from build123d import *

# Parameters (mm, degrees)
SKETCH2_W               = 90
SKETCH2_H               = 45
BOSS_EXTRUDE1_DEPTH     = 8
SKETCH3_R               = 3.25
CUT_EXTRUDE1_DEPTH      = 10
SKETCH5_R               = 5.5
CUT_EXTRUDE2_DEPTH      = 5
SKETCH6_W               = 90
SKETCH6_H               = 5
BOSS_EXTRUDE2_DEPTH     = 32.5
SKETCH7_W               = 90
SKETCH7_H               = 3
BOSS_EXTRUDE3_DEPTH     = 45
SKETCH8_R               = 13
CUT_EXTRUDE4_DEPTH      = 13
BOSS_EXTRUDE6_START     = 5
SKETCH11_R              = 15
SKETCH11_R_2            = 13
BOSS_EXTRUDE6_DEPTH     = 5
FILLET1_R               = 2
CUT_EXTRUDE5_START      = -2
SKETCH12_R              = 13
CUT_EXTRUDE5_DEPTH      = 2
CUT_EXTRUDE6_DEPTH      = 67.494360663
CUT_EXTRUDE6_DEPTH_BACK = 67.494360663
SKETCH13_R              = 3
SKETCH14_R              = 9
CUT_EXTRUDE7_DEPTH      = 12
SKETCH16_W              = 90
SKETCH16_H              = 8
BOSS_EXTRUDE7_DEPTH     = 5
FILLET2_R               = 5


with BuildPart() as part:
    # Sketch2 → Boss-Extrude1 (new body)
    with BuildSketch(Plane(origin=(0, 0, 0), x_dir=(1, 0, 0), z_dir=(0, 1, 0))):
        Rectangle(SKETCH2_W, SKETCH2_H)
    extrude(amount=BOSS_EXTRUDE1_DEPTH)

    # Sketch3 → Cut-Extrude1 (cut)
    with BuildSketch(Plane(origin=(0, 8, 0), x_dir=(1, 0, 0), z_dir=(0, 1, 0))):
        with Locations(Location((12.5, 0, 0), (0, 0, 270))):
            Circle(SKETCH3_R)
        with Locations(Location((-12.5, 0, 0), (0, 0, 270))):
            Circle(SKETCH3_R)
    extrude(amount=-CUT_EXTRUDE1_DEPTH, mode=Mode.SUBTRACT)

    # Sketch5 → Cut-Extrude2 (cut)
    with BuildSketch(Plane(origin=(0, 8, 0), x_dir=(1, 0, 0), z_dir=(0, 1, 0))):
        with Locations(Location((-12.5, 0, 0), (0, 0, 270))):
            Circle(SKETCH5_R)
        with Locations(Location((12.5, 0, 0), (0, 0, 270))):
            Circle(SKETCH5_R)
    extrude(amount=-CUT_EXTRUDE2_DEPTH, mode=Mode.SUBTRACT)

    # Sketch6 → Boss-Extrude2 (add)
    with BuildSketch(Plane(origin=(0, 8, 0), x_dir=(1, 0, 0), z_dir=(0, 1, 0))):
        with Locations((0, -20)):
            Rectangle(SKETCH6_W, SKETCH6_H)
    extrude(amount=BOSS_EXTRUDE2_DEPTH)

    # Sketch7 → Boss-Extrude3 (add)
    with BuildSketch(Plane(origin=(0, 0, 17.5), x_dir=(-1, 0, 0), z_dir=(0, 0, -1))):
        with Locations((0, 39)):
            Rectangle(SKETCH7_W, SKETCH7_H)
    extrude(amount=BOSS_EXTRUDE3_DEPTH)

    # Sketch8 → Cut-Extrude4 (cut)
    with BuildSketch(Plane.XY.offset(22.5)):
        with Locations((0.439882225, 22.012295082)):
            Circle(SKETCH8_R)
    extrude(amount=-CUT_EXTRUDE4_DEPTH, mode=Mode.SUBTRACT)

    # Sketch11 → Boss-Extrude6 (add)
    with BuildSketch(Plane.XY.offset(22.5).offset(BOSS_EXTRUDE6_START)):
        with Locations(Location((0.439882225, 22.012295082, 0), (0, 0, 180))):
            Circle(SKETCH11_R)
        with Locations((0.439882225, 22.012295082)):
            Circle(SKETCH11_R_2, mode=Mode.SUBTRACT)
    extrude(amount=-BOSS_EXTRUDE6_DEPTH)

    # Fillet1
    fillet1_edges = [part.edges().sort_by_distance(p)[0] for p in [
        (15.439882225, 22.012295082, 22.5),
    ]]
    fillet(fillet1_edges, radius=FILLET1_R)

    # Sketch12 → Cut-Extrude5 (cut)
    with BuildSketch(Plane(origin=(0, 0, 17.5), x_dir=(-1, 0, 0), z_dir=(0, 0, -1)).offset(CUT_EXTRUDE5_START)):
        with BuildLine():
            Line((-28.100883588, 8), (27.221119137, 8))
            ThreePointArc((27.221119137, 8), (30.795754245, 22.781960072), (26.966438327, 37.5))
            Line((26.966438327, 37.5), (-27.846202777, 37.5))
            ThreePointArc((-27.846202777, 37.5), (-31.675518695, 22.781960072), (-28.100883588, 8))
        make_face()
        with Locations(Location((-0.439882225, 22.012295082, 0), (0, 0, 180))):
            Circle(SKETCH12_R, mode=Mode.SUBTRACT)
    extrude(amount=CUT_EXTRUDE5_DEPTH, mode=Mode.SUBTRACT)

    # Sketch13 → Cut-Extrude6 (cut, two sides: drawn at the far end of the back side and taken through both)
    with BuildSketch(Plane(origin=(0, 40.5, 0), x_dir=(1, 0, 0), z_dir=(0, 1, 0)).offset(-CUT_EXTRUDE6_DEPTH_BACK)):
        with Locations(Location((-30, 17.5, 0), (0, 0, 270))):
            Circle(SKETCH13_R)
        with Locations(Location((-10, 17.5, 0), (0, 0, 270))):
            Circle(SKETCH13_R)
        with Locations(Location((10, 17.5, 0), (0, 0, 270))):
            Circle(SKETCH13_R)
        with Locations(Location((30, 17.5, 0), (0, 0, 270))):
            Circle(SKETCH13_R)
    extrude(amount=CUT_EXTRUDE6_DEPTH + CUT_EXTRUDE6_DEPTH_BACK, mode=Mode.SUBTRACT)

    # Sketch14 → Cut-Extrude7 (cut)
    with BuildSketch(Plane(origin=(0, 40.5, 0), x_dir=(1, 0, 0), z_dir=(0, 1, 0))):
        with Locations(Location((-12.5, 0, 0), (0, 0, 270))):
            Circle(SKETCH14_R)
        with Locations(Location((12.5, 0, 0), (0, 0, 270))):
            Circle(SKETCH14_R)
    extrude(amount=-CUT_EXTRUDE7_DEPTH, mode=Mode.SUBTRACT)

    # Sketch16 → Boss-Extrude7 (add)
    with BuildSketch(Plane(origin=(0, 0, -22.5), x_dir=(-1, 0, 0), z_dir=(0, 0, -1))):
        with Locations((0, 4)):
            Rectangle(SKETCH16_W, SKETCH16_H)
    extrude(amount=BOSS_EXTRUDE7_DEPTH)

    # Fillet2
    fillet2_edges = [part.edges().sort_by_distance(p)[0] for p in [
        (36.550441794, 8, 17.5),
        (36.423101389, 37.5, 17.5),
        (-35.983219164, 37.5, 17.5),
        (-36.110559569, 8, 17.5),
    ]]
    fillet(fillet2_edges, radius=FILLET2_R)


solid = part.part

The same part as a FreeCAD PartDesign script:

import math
import FreeCAD as App
import Part
import Sketcher


def edges_at(feature, points):
    """Names of the edges that pass closest to the given points."""
    edges = feature.Shape.Edges
    near = lambda p: min(range(len(edges)), key=lambda i: edges[i].distToShape(Part.Vertex(*p))[0])
    return sorted({f"Edge{near(p) + 1}" for p in points})

doc = App.newDocument("Part")
body = doc.addObject("PartDesign::Body", "Body")

# Sketch on XZ plane
sketch1 = body.newObject("Sketcher::SketchObject", "Sketch")
sketch1.AttachmentSupport = (doc.getObject("XZ_Plane"), [""])
sketch1.MapMode = "FlatFace"
sketch1.addGeometry([
    Part.LineSegment(App.Vector(-45, -22, 0), App.Vector(-45, 22, 0)),
    Part.LineSegment(App.Vector(-45, 22, 0), App.Vector(45, 22, 0)),
    Part.LineSegment(App.Vector(45, 22, 0), App.Vector(45, -22, 0)),
    Part.LineSegment(App.Vector(45, -22, 0), App.Vector(-45, -22, 0)),
], False)
sketch1.addConstraint([
    Sketcher.Constraint("Coincident", 0, 2, 1, 1),
    Sketcher.Constraint("Coincident", 1, 2, 2, 1),
    Sketcher.Constraint("Coincident", 2, 2, 3, 1),
    Sketcher.Constraint("Coincident", 3, 2, 0, 1),
    Sketcher.Constraint("Vertical", 0),
    Sketcher.Constraint("Horizontal", 1),
    Sketcher.Constraint("Vertical", 2),
    Sketcher.Constraint("Horizontal", 3),
    Sketcher.Constraint("Symmetric", 0, 2, 2, 2, -1, 1),
    Sketcher.Constraint("DistanceX", 1, 1, 1, 2, 90.0),
    Sketcher.Constraint("DistanceY", 0, 1, 0, 2, 45.0),
])
pad1 = body.newObject("PartDesign::Pad", "Pad")
pad1.Profile = sketch1
pad1.Length = 8
pad1.Reversed = True

# Sketch on XZ plane
sketch2 = body.newObject("Sketcher::SketchObject", "Sketch001")
sketch2.AttachmentSupport = (doc.getObject("XZ_Plane"), [""])
sketch2.MapMode = "FlatFace"
sketch2.AttachmentOffset = App.Placement(App.Vector(0, 0, -8), App.Rotation())
sketch2.addGeometry([
    Part.Circle(App.Vector(12.5, 0, 0), App.Vector(0, 0, 1), 3.2),
    Part.Circle(App.Vector(-12.5, 0, 0), App.Vector(0, 0, 1), 3.2),
], False)
sketch2.addConstraint([
    Sketcher.Constraint("Equal", 0, 1),
    Sketcher.Constraint("Symmetric", 0, 3, 1, 3, -1, 1),
    Sketcher.Constraint("PointOnObject", 0, 3, -1),
    Sketcher.Constraint("Diameter", 0, 6.5),
    Sketcher.Constraint("DistanceX", 1, 3, 0, 3, 25.0),
])
pocket1 = body.newObject("PartDesign::Pocket", "Pocket")
pocket1.Profile = sketch2
pocket1.Length = 10
pocket1.Reversed = True

# Sketch on XZ plane
sketch3 = body.newObject("Sketcher::SketchObject", "Sketch002")
sketch3.AttachmentSupport = (doc.getObject("XZ_Plane"), [""])
sketch3.MapMode = "FlatFace"
sketch3.AttachmentOffset = App.Placement(App.Vector(0, 0, -8), App.Rotation())
sketch3.addGeometry([
    Part.Circle(App.Vector(-12, 0, 0), App.Vector(0, 0, 1), 6),
    Part.Circle(App.Vector(12, 0, 0), App.Vector(0, 0, 1), 6),
], False)
sketch3.addConstraint([
    Sketcher.Constraint("Equal", 0, 1),
    Sketcher.Constraint("Symmetric", 0, 3, 1, 3, -1, 1),
    Sketcher.Constraint("PointOnObject", 0, 3, -1),
    Sketcher.Constraint("Diameter", 0, 11.0),
    Sketcher.Constraint("DistanceX", 0, 3, 1, 3, 25.0),
])
pocket2 = body.newObject("PartDesign::Pocket", "Pocket001")
pocket2.Profile = sketch3
pocket2.Length = 5
pocket2.Reversed = True

# Sketch on XZ plane
sketch4 = body.newObject("Sketcher::SketchObject", "Sketch003")
sketch4.AttachmentSupport = (doc.getObject("XZ_Plane"), [""])
sketch4.MapMode = "FlatFace"
sketch4.AttachmentOffset = App.Placement(App.Vector(0, 0, -8), App.Rotation())
sketch4.addGeometry([
    Part.LineSegment(App.Vector(-45, 18, 0), App.Vector(-45, 22, 0)),
    Part.LineSegment(App.Vector(-45, 22, 0), App.Vector(45, 22, 0)),
    Part.LineSegment(App.Vector(45, 22, 0), App.Vector(45, 18, 0)),
    Part.LineSegment(App.Vector(45, 18, 0), App.Vector(-45, 18, 0)),
], False)
sketch4.addConstraint([
    Sketcher.Constraint("Coincident", 0, 2, 1, 1),
    Sketcher.Constraint("Coincident", 1, 2, 2, 1),
    Sketcher.Constraint("Coincident", 2, 2, 3, 1),
    Sketcher.Constraint("Coincident", 3, 2, 0, 1),
    Sketcher.Constraint("Vertical", 0),
    Sketcher.Constraint("Horizontal", 1),
    Sketcher.Constraint("Vertical", 2),
    Sketcher.Constraint("Horizontal", 3),
    Sketcher.Constraint("DistanceX", 1, 1, 1, 2, 90.0),
    Sketcher.Constraint("DistanceY", 0, 1, 0, 2, 5.0),
    Sketcher.Constraint("DistanceX", 0, 2, -1, 1, 45.0),
    Sketcher.Constraint("DistanceY", -1, 1, 0, 2, 22.5),
])
pad2 = body.newObject("PartDesign::Pad", "Pad001")
pad2.Profile = sketch4
pad2.Length = 32.5
pad2.Reversed = True

# Sketch on XY plane
sketch5 = body.newObject("Sketcher::SketchObject", "Sketch004")
sketch5.AttachmentSupport = (doc.getObject("XY_Plane"), [""])
sketch5.MapMode = "FlatFace"
sketch5.AttachmentOffset = App.Placement(App.Vector(0, 0, 17.5), App.Rotation())
sketch5.addGeometry([
    Part.LineSegment(App.Vector(45, 40.5, 0), App.Vector(45, 37.5, 0)),
    Part.LineSegment(App.Vector(45, 37.5, 0), App.Vector(-45, 37.5, 0)),
    Part.LineSegment(App.Vector(-45, 37.5, 0), App.Vector(-45, 40.5, 0)),
    Part.LineSegment(App.Vector(-45, 40.5, 0), App.Vector(45, 40.5, 0)),
], False)
sketch5.addConstraint([
    Sketcher.Constraint("Coincident", 0, 2, 1, 1),
    Sketcher.Constraint("Coincident", 1, 2, 2, 1),
    Sketcher.Constraint("Coincident", 2, 2, 3, 1),
    Sketcher.Constraint("Coincident", 3, 2, 0, 1),
    Sketcher.Constraint("Vertical", 0),
    Sketcher.Constraint("Horizontal", 1),
    Sketcher.Constraint("Vertical", 2),
    Sketcher.Constraint("Horizontal", 3),
    Sketcher.Constraint("DistanceX", 1, 2, 1, 1, 90.0),
    Sketcher.Constraint("DistanceY", 0, 2, 0, 1, 3.0),
    Sketcher.Constraint("DistanceX", -1, 1, 0, 2, 45.0),
    Sketcher.Constraint("DistanceY", -1, 1, 0, 2, 37.5),
])
pad3 = body.newObject("PartDesign::Pad", "Pad002")
pad3.Profile = sketch5
pad3.Length = 45
pad3.Reversed = True

# Sketch on XY plane
sketch6 = body.newObject("Sketcher::SketchObject", "Sketch005")
sketch6.AttachmentSupport = (doc.getObject("XY_Plane"), [""])
sketch6.MapMode = "FlatFace"
sketch6.AttachmentOffset = App.Placement(App.Vector(0, 0, 22.5), App.Rotation())
sketch6.addGeometry(Part.Circle(App.Vector(0, 22, 0), App.Vector(0, 0, 1), 13), False)
sketch6.addConstraint([
    Sketcher.Constraint("Diameter", 0, 26.0),
    Sketcher.Constraint("DistanceX", -1, 1, 0, 3, 0.439882),
    Sketcher.Constraint("DistanceY", -1, 1, 0, 3, 22.012295),
])
pocket3 = body.newObject("PartDesign::Pocket", "Pocket002")
pocket3.Profile = sketch6
pocket3.Length = 13

# Sketch on XY plane
sketch7 = body.newObject("Sketcher::SketchObject", "Sketch006")
sketch7.AttachmentSupport = (doc.getObject("XY_Plane"), [""])
sketch7.MapMode = "FlatFace"
sketch7.AttachmentOffset = App.Placement(App.Vector(0, 0, 27.5), App.Rotation())
sketch7.addGeometry([
    Part.Circle(App.Vector(0, 22, 0), App.Vector(0, 0, 1), 15),
    Part.Circle(App.Vector(0, 22, 0), App.Vector(0, 0, 1), 13),
], False)
sketch7.addConstraint([
    Sketcher.Constraint("Coincident", 1, 3, 0, 3),
    Sketcher.Constraint("Diameter", 0, 30.0),
    Sketcher.Constraint("Diameter", 1, 26.0),
    Sketcher.Constraint("DistanceX", -1, 1, 0, 3, 0.439882),
    Sketcher.Constraint("DistanceY", -1, 1, 0, 3, 22.012295),
])
pad4 = body.newObject("PartDesign::Pad", "Pad003")
pad4.Profile = sketch7
pad4.Length = 5
pad4.Reversed = True
doc.recompute()

fillet = body.newObject("PartDesign::Fillet", "Fillet")
fillet.Base = (pad4, edges_at(pad4, [(15.44, 22.012, 22.5)]))
fillet.Radius = 2

# Sketch on XY plane
sketch8 = body.newObject("Sketcher::SketchObject", "Sketch007")
sketch8.AttachmentSupport = (doc.getObject("XY_Plane"), [""])
sketch8.MapMode = "FlatFace"
sketch8.AttachmentOffset = App.Placement(App.Vector(0, 0, 19.5), App.Rotation())
sketch8.addGeometry([
    Part.LineSegment(App.Vector(28, 8, 0), App.Vector(-27, 8, 0)),  # 0
    Part.ArcOfCircle(Part.Circle(App.Vector(0, 23, 0), App.Vector(0, 0, 1), 31), math.radians(151), math.radians(208)),  # 1
    Part.LineSegment(App.Vector(-27, 38, 0), App.Vector(28, 38, 0)),  # 2
    Part.ArcOfCircle(Part.Circle(App.Vector(0, 23, 0), App.Vector(0, 0, 1), 31), math.radians(-28), math.radians(29)),  # 3
    Part.Circle(App.Vector(0, 22, 0), App.Vector(0, 0, 1), 13),  # 4
], False)
sketch8.addConstraint([
    Sketcher.Constraint("Coincident", 0, 2, 1, 2),
    Sketcher.Constraint("Coincident", 1, 1, 2, 1),
    Sketcher.Constraint("Coincident", 2, 2, 3, 2),
    Sketcher.Constraint("Coincident", 3, 1, 0, 1),
    Sketcher.Constraint("Horizontal", 0),
    Sketcher.Constraint("Horizontal", 2),
    Sketcher.Constraint("Coincident", 3, 3, 1, 3),
    Sketcher.Constraint("Equal", 1, 3),
    Sketcher.Constraint("Vertical", 3, 3, 4, 3),
    Sketcher.Constraint("Diameter", 4, 26.0),
    Sketcher.Constraint("DistanceY", -1, 1, 0, 2, 8.0),
    Sketcher.Constraint("DistanceY", -1, 1, 1, 1, 37.5),
    Sketcher.Constraint("Radius", 1, 31.2368),
    Sketcher.Constraint("DistanceY", 4, 3, 3, 3, 0.5),
    Sketcher.Constraint("DistanceX", 0, 2, 4, 3, 27.661001),
    Sketcher.Constraint("DistanceX", 0, 2, -1, 1, 27.221119),
])
pocket4 = body.newObject("PartDesign::Pocket", "Pocket003")
pocket4.Profile = sketch8
pocket4.Length = 2

# Sketch on XZ plane
sketch9 = body.newObject("Sketcher::SketchObject", "Sketch008")
sketch9.AttachmentSupport = (doc.getObject("XZ_Plane"), [""])
sketch9.MapMode = "FlatFace"
sketch9.AttachmentOffset = App.Placement(App.Vector(0, 0, -40.5), App.Rotation())
sketch9.addGeometry([
    Part.Circle(App.Vector(-30, -17.5, 0), App.Vector(0, 0, 1), 3),
    Part.Circle(App.Vector(-10, -17.5, 0), App.Vector(0, 0, 1), 3),
    Part.Circle(App.Vector(10, -17.5, 0), App.Vector(0, 0, 1), 3),
    Part.Circle(App.Vector(30, -17.5, 0), App.Vector(0, 0, 1), 3),
], False)
sketch9.addConstraint([
    Sketcher.Constraint("Equal", 0, 1),
    Sketcher.Constraint("Equal", 1, 2),
    Sketcher.Constraint("Equal", 2, 3),
    Sketcher.Constraint("Symmetric", 1, 3, 2, 3, -2),
    Sketcher.Constraint("Symmetric", 0, 3, 3, 3, -2),
    Sketcher.Constraint("Horizontal", 0, 3, 1, 3),
    Sketcher.Constraint("Diameter", 0, 6.0),
    Sketcher.Constraint("DistanceX", 0, 3, -1, 1, 30.0),
    Sketcher.Constraint("DistanceX", 1, 3, -1, 1, 10.0),
    Sketcher.Constraint("DistanceY", 0, 3, -1, 1, 17.5),
])
pocket5 = body.newObject("PartDesign::Pocket", "Pocket004")
pocket5.Profile = sketch9
pocket5.Type = "ThroughAll"
pocket5.Midplane = True

# Sketch on XZ plane
sketch10 = body.newObject("Sketcher::SketchObject", "Sketch009")
sketch10.AttachmentSupport = (doc.getObject("XZ_Plane"), [""])
sketch10.MapMode = "FlatFace"
sketch10.AttachmentOffset = App.Placement(App.Vector(0, 0, -40.5), App.Rotation())
sketch10.addGeometry([
    Part.Circle(App.Vector(-12, 0, 0), App.Vector(0, 0, 1), 9),
    Part.Circle(App.Vector(12, 0, 0), App.Vector(0, 0, 1), 9),
], False)
sketch10.addConstraint([
    Sketcher.Constraint("Equal", 0, 1),
    Sketcher.Constraint("Symmetric", 0, 3, 1, 3, -1, 1),
    Sketcher.Constraint("PointOnObject", 0, 3, -1),
    Sketcher.Constraint("Diameter", 0, 18.0),
    Sketcher.Constraint("DistanceX", 0, 3, 1, 3, 25.0),
])
pocket6 = body.newObject("PartDesign::Pocket", "Pocket005")
pocket6.Profile = sketch10
pocket6.Length = 12
pocket6.Reversed = True

# Sketch on XY plane
sketch11 = body.newObject("Sketcher::SketchObject", "Sketch010")
sketch11.AttachmentSupport = (doc.getObject("XY_Plane"), [""])
sketch11.MapMode = "FlatFace"
sketch11.AttachmentOffset = App.Placement(App.Vector(0, 0, -22.5), App.Rotation())
sketch11.addGeometry([
    Part.LineSegment(App.Vector(45, 8, 0), App.Vector(45, 0, 0)),
    Part.LineSegment(App.Vector(45, 0, 0), App.Vector(-45, 0, 0)),
    Part.LineSegment(App.Vector(-45, 0, 0), App.Vector(-45, 8, 0)),
    Part.LineSegment(App.Vector(-45, 8, 0), App.Vector(45, 8, 0)),
], False)
sketch11.addConstraint([
    Sketcher.Constraint("Coincident", 0, 2, 1, 1),
    Sketcher.Constraint("Coincident", 1, 2, 2, 1),
    Sketcher.Constraint("Coincident", 2, 2, 3, 1),
    Sketcher.Constraint("Coincident", 3, 2, 0, 1),
    Sketcher.Constraint("Vertical", 0),
    Sketcher.Constraint("Horizontal", 1),
    Sketcher.Constraint("Vertical", 2),
    Sketcher.Constraint("Horizontal", 3),
    Sketcher.Constraint("Symmetric", 0, 2, 1, 2, -1, 1),
    Sketcher.Constraint("DistanceX", 1, 2, 1, 1, 90.0),
    Sketcher.Constraint("DistanceY", 0, 2, 0, 1, 8.0),
])
pad5 = body.newObject("PartDesign::Pad", "Pad004")
pad5.Profile = sketch11
pad5.Length = 5
pad5.Reversed = True
doc.recompute()

fillet2 = body.newObject("PartDesign::Fillet", "Fillet001")
fillet2.Base = (pad5, edges_at(pad5, [
    (36.55, 8, 17.5),
    (36.423, 37.5, 17.5),
    (-35.983, 37.5, 17.5),
    (-36.111, 8, 17.5),
]))
fillet2.Radius = 5

doc.recompute()
